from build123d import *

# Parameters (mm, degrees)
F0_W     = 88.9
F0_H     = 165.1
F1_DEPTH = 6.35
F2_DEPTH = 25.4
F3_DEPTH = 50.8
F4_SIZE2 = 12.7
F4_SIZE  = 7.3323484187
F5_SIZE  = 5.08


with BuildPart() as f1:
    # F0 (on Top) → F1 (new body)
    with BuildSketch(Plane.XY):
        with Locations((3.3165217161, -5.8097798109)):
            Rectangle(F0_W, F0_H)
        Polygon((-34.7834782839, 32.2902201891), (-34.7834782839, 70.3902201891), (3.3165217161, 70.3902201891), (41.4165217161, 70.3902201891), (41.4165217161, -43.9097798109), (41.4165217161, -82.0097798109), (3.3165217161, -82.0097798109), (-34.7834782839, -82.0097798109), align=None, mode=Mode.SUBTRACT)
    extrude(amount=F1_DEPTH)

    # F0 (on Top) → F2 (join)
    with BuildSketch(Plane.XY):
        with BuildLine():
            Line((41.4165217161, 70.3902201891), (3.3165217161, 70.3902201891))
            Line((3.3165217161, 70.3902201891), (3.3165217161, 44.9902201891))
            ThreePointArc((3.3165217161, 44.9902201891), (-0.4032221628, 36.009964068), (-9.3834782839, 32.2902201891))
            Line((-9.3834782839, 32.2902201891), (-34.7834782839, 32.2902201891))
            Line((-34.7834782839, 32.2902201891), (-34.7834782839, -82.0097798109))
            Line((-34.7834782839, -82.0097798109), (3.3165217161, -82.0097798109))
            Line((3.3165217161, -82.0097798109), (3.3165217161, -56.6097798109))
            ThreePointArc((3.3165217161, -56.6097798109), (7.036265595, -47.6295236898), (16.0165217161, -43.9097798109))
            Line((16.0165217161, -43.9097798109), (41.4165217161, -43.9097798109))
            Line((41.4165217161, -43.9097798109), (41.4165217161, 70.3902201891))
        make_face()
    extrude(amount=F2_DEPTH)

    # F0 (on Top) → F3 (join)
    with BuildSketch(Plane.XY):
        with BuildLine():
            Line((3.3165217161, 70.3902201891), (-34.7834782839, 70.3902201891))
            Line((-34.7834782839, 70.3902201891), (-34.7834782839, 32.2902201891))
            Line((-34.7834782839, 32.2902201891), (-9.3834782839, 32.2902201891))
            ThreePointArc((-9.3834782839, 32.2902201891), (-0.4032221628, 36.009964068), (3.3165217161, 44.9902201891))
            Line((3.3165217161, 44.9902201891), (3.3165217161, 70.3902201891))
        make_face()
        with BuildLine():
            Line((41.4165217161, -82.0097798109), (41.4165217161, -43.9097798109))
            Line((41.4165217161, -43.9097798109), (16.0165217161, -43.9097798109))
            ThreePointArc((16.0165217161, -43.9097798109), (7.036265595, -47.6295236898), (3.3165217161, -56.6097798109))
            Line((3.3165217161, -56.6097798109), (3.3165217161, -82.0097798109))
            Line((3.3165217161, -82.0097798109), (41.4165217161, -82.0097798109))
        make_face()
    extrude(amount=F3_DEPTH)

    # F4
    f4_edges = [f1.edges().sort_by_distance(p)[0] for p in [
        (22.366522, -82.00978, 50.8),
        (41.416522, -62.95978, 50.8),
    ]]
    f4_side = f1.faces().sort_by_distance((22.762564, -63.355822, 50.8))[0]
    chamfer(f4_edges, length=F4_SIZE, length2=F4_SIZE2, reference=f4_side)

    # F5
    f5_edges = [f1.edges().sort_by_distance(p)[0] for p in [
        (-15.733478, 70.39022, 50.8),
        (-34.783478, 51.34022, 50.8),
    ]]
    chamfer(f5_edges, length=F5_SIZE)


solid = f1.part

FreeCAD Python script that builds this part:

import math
import FreeCAD as App
import Part
import Sketcher
Q = App.Units.Quantity


def edges_at(feature, points):
    """Names of the edges that pass closest to the given points."""
    edges = feature.Shape.Edges
    near = lambda p: min(range(len(edges)), key=lambda i: edges[i].distToShape(Part.Vertex(*p))[0])
    return sorted({f"Edge{near(p) + 1}" for p in points})

doc = App.newDocument("Part")
body = doc.addObject("PartDesign::Body", "Body")

sketch1 = doc.addObject("Sketcher::SketchObject", "Sketch")
body.addObject(sketch1)
sketch1.AttachmentSupport = (doc.XY_Plane, [""])
sketch1.MapMode = "FlatFace"
sketch1.addGeometry([
    Part.LineSegment(App.Vector(-41, 77, 0), App.Vector(-41, -88, 0)),
    Part.LineSegment(App.Vector(-41, -88, 0), App.Vector(48, -88, 0)),
    Part.LineSegment(App.Vector(48, -88, 0), App.Vector(48, 77, 0)),
    Part.LineSegment(App.Vector(48, 77, 0), App.Vector(-41, 77, 0)),
    Part.LineSegment(App.Vector(-35, -82, 0), App.Vector(-35, 70, 0)),
    Part.LineSegment(App.Vector(-35, 70, 0), App.Vector(41, 70, 0)),
    Part.LineSegment(App.Vector(41, 70, 0), App.Vector(41, -82, 0)),
    Part.LineSegment(App.Vector(41, -82, 0), App.Vector(-35, -82, 0)),
], False)
sketch1.addConstraint([
    Sketcher.Constraint("Coincident", 0, 2, 1, 1),
    Sketcher.Constraint("Coincident", 1, 2, 2, 1),
    Sketcher.Constraint("Coincident", 2, 2, 3, 1),
    Sketcher.Constraint("Coincident", 3, 2, 0, 1),
    Sketcher.Constraint("Coincident", 4, 2, 5, 1),
    Sketcher.Constraint("Coincident", 5, 2, 6, 1),
    Sketcher.Constraint("Coincident", 6, 2, 7, 1),
    Sketcher.Constraint("Coincident", 7, 2, 4, 1),
    Sketcher.Constraint("Vertical", 0),
    Sketcher.Constraint("Horizontal", 1),
    Sketcher.Constraint("Vertical", 2),
    Sketcher.Constraint("Horizontal", 3),
    Sketcher.Constraint("Vertical", 4),
    Sketcher.Constraint("Horizontal", 5),
    Sketcher.Constraint("Vertical", 6),
    Sketcher.Constraint("Horizontal", 7),
    Sketcher.Constraint("DistanceX", 5, 1, 5, 2, Q("3 in")),
    Sketcher.Constraint("DistanceY", 4, 1, 4, 2, Q("6 in")),
    Sketcher.Constraint("DistanceX", 1, 1, 1, 2, Q("3.5 in")),
    Sketcher.Constraint("DistanceY", 0, 2, 0, 1, Q("6.5 in")),
    Sketcher.Constraint("DistanceX", 3, 2, 4, 2, Q("0.25 in")),
    Sketcher.Constraint("DistanceY", 4, 2, 3, 2, Q("0.25 in")),
    Sketcher.Constraint("DistanceX", 0, 2, -1, 1, 41.133478),
    Sketcher.Constraint("DistanceY", 0, 2, -1, 1, 88.35978),
])
pad1 = doc.addObject("PartDesign::Pad", "Pad")
body.addObject(pad1)
pad1.Profile = sketch1
pad1.Length = Q("0.25 in")

sketch2 = doc.addObject("Sketcher::SketchObject", "Sketch001")
body.addObject(sketch2)
sketch2.AttachmentSupport = (doc.XY_Plane, [""])
sketch2.MapMode = "FlatFace"
sketch2.addGeometry([
    Part.LineSegment(App.Vector(41, 70, 0), App.Vector(3, 70, 0)),
    Part.LineSegment(App.Vector(3, 70, 0), App.Vector(3, 45, 0)),
    Part.ArcOfCircle(Part.Circle(App.Vector(-9, 45, 0), App.Vector(0, 0, 1), 13), math.radians(-90), math.radians(0)),
    Part.LineSegment(App.Vector(-9, 32, 0), App.Vector(-35, 32, 0)),
    Part.LineSegment(App.Vector(-35, 32, 0), App.Vector(-35, -82, 0)),
    Part.LineSegment(App.Vector(-35, -82, 0), App.Vector(3, -82, 0)),
    Part.LineSegment(App.Vector(3, -82, 0), App.Vector(3, -57, 0)),
    Part.ArcOfCircle(Part.Circle(App.Vector(16, -57, 0), App.Vector(0, 0, 1), 13), math.radians(90), math.radians(180)),
    Part.LineSegment(App.Vector(16, -44, 0), App.Vector(41, -44, 0)),
    Part.LineSegment(App.Vector(41, -44, 0), App.Vector(41, 70, 0)),
], False)
sketch2.addConstraint([
    Sketcher.Constraint("Coincident", 0, 2, 1, 1),
    Sketcher.Constraint("Tangent", 1, 2, 2, 2),
    Sketcher.Constraint("Tangent", 2, 1, 3, 1),
    Sketcher.Constraint("Coincident", 3, 2, 4, 1),
    Sketcher.Constraint("Coincident", 4, 2, 5, 1),
    Sketcher.Constraint("Coincident", 5, 2, 6, 1),
    Sketcher.Constraint("Tangent", 6, 2, 7, 2),
    Sketcher.Constraint("Tangent", 7, 1, 8, 1),
    Sketcher.Constraint("Coincident", 8, 2, 9, 1),
    Sketcher.Constraint("Coincident", 9, 2, 0, 1),
    Sketcher.Constraint("Horizontal", 0),
    Sketcher.Constraint("Vertical", 1),
    Sketcher.Constraint("Horizontal", 3),
    Sketcher.Constraint("Vertical", 4),
    Sketcher.Constraint("Horizontal", 5),
    Sketcher.Constraint("Vertical", 6),
    Sketcher.Constraint("Horizontal", 8),
    Sketcher.Constraint("Vertical", 9),
    Sketcher.Constraint("Equal", 2, 7),
    Sketcher.Constraint("Vertical", 1, 2, 5, 2),
    Sketcher.Constraint("Equal", 0, 5),
    Sketcher.Constraint("Equal", 8, 1),
    Sketcher.Constraint("Equal", 1, 6),
    Sketcher.Constraint("Radius", 2, Q("0.5 in")),
    Sketcher.Constraint("DistanceX", 3, 2, 3, 1, Q("1 in")),
    Sketcher.Constraint("DistanceY", 4, 2, 4, 1, Q("4.5 in")),
    Sketcher.Constraint("DistanceX", 2, 3, -1, 1, 9.383478),
    Sketcher.Constraint("DistanceY", -1, 1, 2, 3, 44.99022),
])
pad2 = doc.addObject("PartDesign::Pad", "Pad001")
body.addObject(pad2)
pad2.Profile = sketch2
pad2.Length = Q("1 in")

sketch3 = doc.addObject("Sketcher::SketchObject", "Sketch002")
body.addObject(sketch3)
sketch3.AttachmentSupport = (doc.XY_Plane, [""])
sketch3.MapMode = "FlatFace"
sketch3.addGeometry([
    Part.LineSegment(App.Vector(3, 70, 0), App.Vector(-35, 70, 0)),
    Part.LineSegment(App.Vector(-35, 70, 0), App.Vector(-35, 32, 0)),
    Part.LineSegment(App.Vector(-35, 32, 0), App.Vector(-9, 32, 0)),
    Part.ArcOfCircle(Part.Circle(App.Vector(-9, 45, 0), App.Vector(0, 0, 1), 13), math.radians(-90), math.radians(0)),
    Part.LineSegment(App.Vector(3, 45, 0), App.Vector(3, 70, 0)),
    Part.LineSegment(App.Vector(41, -82, 0), App.Vector(41, -44, 0)),
    Part.LineSegment(App.Vector(41, -44, 0), App.Vector(16, -44, 0)),
    Part.ArcOfCircle(Part.Circle(App.Vector(16, -57, 0), App.Vector(0, 0, 1), 13), math.radians(90), math.radians(180)),
    Part.LineSegment(App.Vector(3, -57, 0), App.Vector(3, -82, 0)),
    Part.LineSegment(App.Vector(3, -82, 0), App.Vector(41, -82, 0)),
], False)
sketch3.addConstraint([
    Sketcher.Constraint("Coincident", 0, 2, 1, 1),
    Sketcher.Constraint("Coincident", 1, 2, 2, 1),
    Sketcher.Constraint("Tangent", 2, 2, 3, 1),
    Sketcher.Constraint("Tangent", 3, 2, 4, 1),
    Sketcher.Constraint("Coincident", 4, 2, 0, 1),
    Sketcher.Constraint("Coincident", 5, 2, 6, 1),
    Sketcher.Constraint("Tangent", 6, 2, 7, 1),
    Sketcher.Constraint("Tangent", 7, 2, 8, 1),
    Sketcher.Constraint("Coincident", 8, 2, 9, 1),
    Sketcher.Constraint("Coincident", 9, 2, 5, 1),
    Sketcher.Constraint("Horizontal", 0),
    Sketcher.Constraint("Vertical", 1),
    Sketcher.Constraint("Horizontal", 2),
    Sketcher.Constraint("Vertical", 4),
    Sketcher.Constraint("Vertical", 5),
    Sketcher.Constraint("Horizontal", 6),
    Sketcher.Constraint("Vertical", 8),
    Sketcher.Constraint("Horizontal", 9),
    Sketcher.Constraint("Equal", 3, 7),
    Sketcher.Constraint("Vertical", 4, 2, 7, 2),
    Sketcher.Constraint("Equal", 2, 6),
    Sketcher.Constraint("Equal", 9, 1),
    Sketcher.Constraint("Equal", 1, 5),
    Sketcher.Constraint("Radius", 3, Q("0.5 in")),
    Sketcher.Constraint("DistanceX", 2, 1, 2, 2, Q("1 in")),
    Sketcher.Constraint("DistanceY", 7, 3, 3, 3, Q("4 in")),
    Sketcher.Constraint("DistanceX", 3, 3, -1, 1, 9.383478),
    Sketcher.Constraint("DistanceY", -1, 1, 3, 3, 44.99022),
])
pad3 = doc.addObject("PartDesign::Pad", "Pad002")
body.addObject(pad3)
pad3.Profile = sketch3
pad3.Length = Q("2 in")
doc.recompute()

chamfer = doc.addObject("PartDesign::Chamfer", "Chamfer")
body.addObject(chamfer)
chamfer.Base = (pad3, edges_at(pad3, [(22.367, -82.01, 50.8), (41.417, -62.96, 50.8)]))
chamfer.ChamferType = "Two distances"
chamfer.Size = 7.332348
chamfer.Size2 = Q("0.5 in")
doc.recompute()

chamfer2 = doc.addObject("PartDesign::Chamfer", "Chamfer001")
body.addObject(chamfer2)
chamfer2.Base = (chamfer, edges_at(chamfer, [(-15.733, 70.39, 50.8), (-34.783, 51.34, 50.8)]))
chamfer2.Size = Q("0.2 in")

doc.recompute()
